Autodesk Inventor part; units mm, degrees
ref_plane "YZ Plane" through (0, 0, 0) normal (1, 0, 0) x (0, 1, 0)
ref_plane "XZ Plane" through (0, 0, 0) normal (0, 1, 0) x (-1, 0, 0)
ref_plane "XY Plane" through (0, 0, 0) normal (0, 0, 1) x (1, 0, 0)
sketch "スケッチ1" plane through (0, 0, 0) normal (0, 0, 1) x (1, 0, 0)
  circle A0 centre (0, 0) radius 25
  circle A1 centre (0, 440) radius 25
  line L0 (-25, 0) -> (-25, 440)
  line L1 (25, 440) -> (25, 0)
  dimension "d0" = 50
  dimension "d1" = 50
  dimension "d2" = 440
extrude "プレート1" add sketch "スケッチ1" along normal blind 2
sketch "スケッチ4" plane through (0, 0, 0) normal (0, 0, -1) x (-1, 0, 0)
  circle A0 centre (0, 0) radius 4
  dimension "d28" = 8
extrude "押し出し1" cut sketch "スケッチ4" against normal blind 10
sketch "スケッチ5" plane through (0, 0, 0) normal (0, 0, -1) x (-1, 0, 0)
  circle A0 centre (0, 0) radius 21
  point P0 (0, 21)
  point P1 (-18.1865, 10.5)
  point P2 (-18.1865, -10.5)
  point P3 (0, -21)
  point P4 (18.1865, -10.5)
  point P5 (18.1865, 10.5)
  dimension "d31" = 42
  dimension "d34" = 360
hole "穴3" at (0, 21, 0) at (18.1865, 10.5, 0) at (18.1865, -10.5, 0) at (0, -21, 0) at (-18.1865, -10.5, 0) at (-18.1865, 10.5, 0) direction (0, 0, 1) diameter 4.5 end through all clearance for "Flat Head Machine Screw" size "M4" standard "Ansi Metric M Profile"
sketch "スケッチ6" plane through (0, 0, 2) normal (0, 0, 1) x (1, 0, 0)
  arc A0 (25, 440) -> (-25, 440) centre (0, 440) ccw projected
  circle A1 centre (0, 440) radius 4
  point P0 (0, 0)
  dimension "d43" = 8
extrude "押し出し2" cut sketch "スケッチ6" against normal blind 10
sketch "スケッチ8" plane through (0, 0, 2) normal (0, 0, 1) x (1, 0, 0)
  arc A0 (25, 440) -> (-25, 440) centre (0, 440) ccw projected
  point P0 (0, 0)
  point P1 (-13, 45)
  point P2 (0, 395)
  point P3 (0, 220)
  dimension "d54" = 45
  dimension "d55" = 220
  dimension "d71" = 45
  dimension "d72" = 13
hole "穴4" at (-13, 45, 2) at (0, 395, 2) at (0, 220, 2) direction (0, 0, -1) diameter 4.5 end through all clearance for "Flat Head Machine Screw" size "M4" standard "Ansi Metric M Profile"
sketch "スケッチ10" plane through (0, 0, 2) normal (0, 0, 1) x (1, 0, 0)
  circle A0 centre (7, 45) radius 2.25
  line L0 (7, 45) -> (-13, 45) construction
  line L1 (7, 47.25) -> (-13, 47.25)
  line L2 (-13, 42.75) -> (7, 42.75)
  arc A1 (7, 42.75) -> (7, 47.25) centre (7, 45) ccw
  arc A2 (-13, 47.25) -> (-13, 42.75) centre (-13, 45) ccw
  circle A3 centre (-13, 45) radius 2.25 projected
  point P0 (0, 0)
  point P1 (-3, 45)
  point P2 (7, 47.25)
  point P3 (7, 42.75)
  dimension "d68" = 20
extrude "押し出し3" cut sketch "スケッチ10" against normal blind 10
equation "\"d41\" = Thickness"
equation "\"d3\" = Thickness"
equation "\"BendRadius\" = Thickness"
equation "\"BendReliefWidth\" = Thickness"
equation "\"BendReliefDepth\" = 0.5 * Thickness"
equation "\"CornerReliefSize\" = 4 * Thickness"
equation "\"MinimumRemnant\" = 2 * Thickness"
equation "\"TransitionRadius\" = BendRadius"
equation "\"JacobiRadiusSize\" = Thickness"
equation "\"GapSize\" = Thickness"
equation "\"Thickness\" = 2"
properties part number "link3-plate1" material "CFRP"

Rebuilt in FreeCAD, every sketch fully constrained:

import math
import FreeCAD as App
import Part
import Sketcher
from FreeCAD import Vector
Q = App.Units.Quantity

doc = App.newDocument("Part")
body = doc.addObject("PartDesign::Body", "Body")

# Sketch on XY plane
sketch1 = body.newObject("Sketcher::SketchObject", "Sketch")
sketch1.AttachmentSupport = (doc.getObject("XY_Plane"), [""])
sketch1.MapMode = "FlatFace"
sketch1.addGeometry([
    Part.ArcOfCircle(Part.Circle(Vector(0, 0, 0), Vector(0, 0, 1), 25), math.radians(180), math.radians(360)),
    Part.LineSegment(Vector(25, 0, 0), Vector(25, 440, 0)),
    Part.ArcOfCircle(Part.Circle(Vector(0, 440, 0), Vector(0, 0, 1), 25), math.radians(0), math.radians(180)),
    Part.LineSegment(Vector(-25, 440, 0), Vector(-25, 0, 0)),
], False)
sketch1.addConstraint([
    Sketcher.Constraint("Tangent", 0, 2, 1, 1),
    Sketcher.Constraint("Tangent", 1, 2, 2, 1),
    Sketcher.Constraint("Tangent", 2, 2, 3, 1),
    Sketcher.Constraint("Tangent", 3, 2, 0, 1),
    Sketcher.Constraint("Vertical", 1),
    Sketcher.Constraint("Vertical", 3),
    Sketcher.Constraint("Coincident", 0, 3, -1, 1),
    Sketcher.Constraint("Radius", 0, Q("25 mm")),
    Sketcher.Constraint("DistanceY", 1, 1, 1, 2, Q("440 mm")),
])
pad1 = body.newObject("PartDesign::Pad", "Pad")
pad1.Profile = sketch1
pad1.Length = 2

# Sketch on XY plane
sketch2 = body.newObject("Sketcher::SketchObject", "Sketch001")
sketch2.AttachmentSupport = (doc.getObject("XY_Plane"), [""])
sketch2.MapMode = "FlatFace"
sketch2.addGeometry(Part.Circle(Vector(0, 0, 0), Vector(0, 0, 1), 4), False)
sketch2.addConstraint([
    Sketcher.Constraint("Coincident", 0, 3, -1, 1),
    Sketcher.Constraint("Diameter", 0, Q("8 mm")),
])
pocket1 = body.newObject("PartDesign::Pocket", "Pocket")
pocket1.Profile = sketch2
pocket1.Length = 10
pocket1.Reversed = True

# Sketch on XY plane
sketch3 = body.newObject("Sketcher::SketchObject", "Sketch002")
sketch3.AttachmentSupport = (doc.getObject("XY_Plane"), [""])
sketch3.MapMode = "FlatFace"
sketch3.addGeometry([
    Part.Circle(Vector(0, 21, 0), Vector(0, 0, 1), 2.25),  # 0
    Part.Circle(Vector(18.1865, 10.5, 0), Vector(0, 0, 1), 2.25),  # 1
    Part.Circle(Vector(18.1865, -10.5, 0), Vector(0, 0, 1), 2.25),  # 2
    Part.Circle(Vector(0, -21, 0), Vector(0, 0, 1), 2.25),  # 3
    Part.Circle(Vector(-18.1865, -10.5, 0), Vector(0, 0, 1), 2.25),  # 4
    Part.Circle(Vector(-18.1865, 10.5, 0), Vector(0, 0, 1), 2.25),  # 5
], False)
sketch3.addConstraint([
    Sketcher.Constraint("Equal", 0, 1),
    Sketcher.Constraint("Equal", 1, 2),
    Sketcher.Constraint("Equal", 2, 3),
    Sketcher.Constraint("Equal", 3, 4),
    Sketcher.Constraint("Equal", 4, 5),
    Sketcher.Constraint("Symmetric", 0, 3, 3, 3, -1, 1),
    Sketcher.Constraint("Symmetric", 1, 3, 4, 3, -1, 1),
    Sketcher.Constraint("Symmetric", 2, 3, 5, 3, -1, 1),
    Sketcher.Constraint("Symmetric", 2, 3, 4, 3, -2),
    Sketcher.Constraint("PointOnObject", 0, 3, -2),
    Sketcher.Constraint("Diameter", 0, Q("4.5 mm")),
    Sketcher.Constraint("DistanceY", -1, 1, 0, 3, Q("21 mm")),
    Sketcher.Constraint("DistanceY", 2, 3, 1, 3, Q("21 mm")),
    Sketcher.Constraint("DistanceX", 4, 3, 2, 3, Q("36.373 mm")),
])
doc.recompute()
hole = body.newObject("PartDesign::Hole", "Hole")
hole.Profile = sketch3
hole.ThreadType = "None"
hole.Diameter = 4.5
hole.DepthType = "ThroughAll"
hole.Reversed = True

# Sketch on XY plane
sketch4 = body.newObject("Sketcher::SketchObject", "Sketch003")
sketch4.AttachmentSupport = (doc.getObject("XY_Plane"), [""])
sketch4.MapMode = "FlatFace"
sketch4.AttachmentOffset = App.Placement(Vector(0, 0, 2), App.Rotation())
sketch4.addGeometry(Part.Circle(Vector(0, 440, 0), Vector(0, 0, 1), 4), False)
sketch4.addConstraint([
    Sketcher.Constraint("PointOnObject", 0, 3, -2),
    Sketcher.Constraint("Diameter", 0, Q("8 mm")),
    Sketcher.Constraint("DistanceY", -1, 1, 0, 3, Q("440 mm")),
])
pocket2 = body.newObject("PartDesign::Pocket", "Pocket001")
pocket2.Profile = sketch4
pocket2.Length = 10

# Sketch on XY plane
sketch5 = body.newObject("Sketcher::SketchObject", "Sketch004")
sketch5.AttachmentSupport = (doc.getObject("XY_Plane"), [""])
sketch5.MapMode = "FlatFace"
sketch5.AttachmentOffset = App.Placement(Vector(0, 0, 2), App.Rotation())
sketch5.addGeometry([
    Part.Circle(Vector(-13, 45, 0), Vector(0, 0, 1), 2.25),
    Part.Circle(Vector(0, 395, 0), Vector(0, 0, 1), 2.25),
    Part.Circle(Vector(0, 220, 0), Vector(0, 0, 1), 2.25),
], False)
sketch5.addConstraint([
    Sketcher.Constraint("Equal", 0, 1),
    Sketcher.Constraint("Equal", 1, 2),
    Sketcher.Constraint("PointOnObject", 1, 3, -2),
    Sketcher.Constraint("PointOnObject", 2, 3, -2),
    Sketcher.Constraint("Diameter", 0, Q("4.5 mm")),
    Sketcher.Constraint("DistanceX", 0, 3, -1, 1, Q("13 mm")),
    Sketcher.Constraint("DistanceY", -1, 1, 0, 3, Q("45 mm")),
    Sketcher.Constraint("DistanceY", -1, 1, 1, 3, Q("395 mm")),
    Sketcher.Constraint("DistanceY", -1, 1, 2, 3, Q("220 mm")),
])
doc.recompute()
hole2 = body.newObject("PartDesign::Hole", "Hole001")
hole2.Profile = sketch5
hole2.ThreadType = "None"
hole2.Diameter = 4.5
hole2.DepthType = "ThroughAll"

# Sketch on XY plane
sketch6 = body.newObject("Sketcher::SketchObject", "Sketch005")
sketch6.AttachmentSupport = (doc.getObject("XY_Plane"), [""])
sketch6.MapMode = "FlatFace"
sketch6.AttachmentOffset = App.Placement(Vector(0, 0, 2), App.Rotation())
sketch6.addGeometry([
    Part.ArcOfCircle(Part.Circle(Vector(7, 45, 0), Vector(0, 0, 1), 2.25), math.radians(-90), math.radians(90)),
    Part.LineSegment(Vector(7, 47.25, 0), Vector(-13, 47.25, 0)),
    Part.ArcOfCircle(Part.Circle(Vector(-13, 45, 0), Vector(0, 0, 1), 2.25), math.radians(90), math.radians(270)),
    Part.LineSegment(Vector(-13, 42.75, 0), Vector(7, 42.75, 0)),
], False)
sketch6.addConstraint([
    Sketcher.Constraint("Tangent", 0, 2, 1, 1),
    Sketcher.Constraint("Tangent", 1, 2, 2, 1),
    Sketcher.Constraint("Tangent", 2, 2, 3, 1),
    Sketcher.Constraint("Tangent", 3, 2, 0, 1),
    Sketcher.Constraint("Horizontal", 1),
    Sketcher.Constraint("Horizontal", 3),
    Sketcher.Constraint("DistanceX", 1, 2, 1, 1, Q("20 mm")),
    Sketcher.Constraint("Radius", 0, Q("2.25 mm")),
    Sketcher.Constraint("DistanceX", -1, 1, 0, 3, Q("7 mm")),
    Sketcher.Constraint("DistanceY", -1, 1, 0, 3, Q("45 mm")),
])
pocket3 = body.newObject("PartDesign::Pocket", "Pocket002")
pocket3.Profile = sketch6
pocket3.Length = 10

doc.recompute()
